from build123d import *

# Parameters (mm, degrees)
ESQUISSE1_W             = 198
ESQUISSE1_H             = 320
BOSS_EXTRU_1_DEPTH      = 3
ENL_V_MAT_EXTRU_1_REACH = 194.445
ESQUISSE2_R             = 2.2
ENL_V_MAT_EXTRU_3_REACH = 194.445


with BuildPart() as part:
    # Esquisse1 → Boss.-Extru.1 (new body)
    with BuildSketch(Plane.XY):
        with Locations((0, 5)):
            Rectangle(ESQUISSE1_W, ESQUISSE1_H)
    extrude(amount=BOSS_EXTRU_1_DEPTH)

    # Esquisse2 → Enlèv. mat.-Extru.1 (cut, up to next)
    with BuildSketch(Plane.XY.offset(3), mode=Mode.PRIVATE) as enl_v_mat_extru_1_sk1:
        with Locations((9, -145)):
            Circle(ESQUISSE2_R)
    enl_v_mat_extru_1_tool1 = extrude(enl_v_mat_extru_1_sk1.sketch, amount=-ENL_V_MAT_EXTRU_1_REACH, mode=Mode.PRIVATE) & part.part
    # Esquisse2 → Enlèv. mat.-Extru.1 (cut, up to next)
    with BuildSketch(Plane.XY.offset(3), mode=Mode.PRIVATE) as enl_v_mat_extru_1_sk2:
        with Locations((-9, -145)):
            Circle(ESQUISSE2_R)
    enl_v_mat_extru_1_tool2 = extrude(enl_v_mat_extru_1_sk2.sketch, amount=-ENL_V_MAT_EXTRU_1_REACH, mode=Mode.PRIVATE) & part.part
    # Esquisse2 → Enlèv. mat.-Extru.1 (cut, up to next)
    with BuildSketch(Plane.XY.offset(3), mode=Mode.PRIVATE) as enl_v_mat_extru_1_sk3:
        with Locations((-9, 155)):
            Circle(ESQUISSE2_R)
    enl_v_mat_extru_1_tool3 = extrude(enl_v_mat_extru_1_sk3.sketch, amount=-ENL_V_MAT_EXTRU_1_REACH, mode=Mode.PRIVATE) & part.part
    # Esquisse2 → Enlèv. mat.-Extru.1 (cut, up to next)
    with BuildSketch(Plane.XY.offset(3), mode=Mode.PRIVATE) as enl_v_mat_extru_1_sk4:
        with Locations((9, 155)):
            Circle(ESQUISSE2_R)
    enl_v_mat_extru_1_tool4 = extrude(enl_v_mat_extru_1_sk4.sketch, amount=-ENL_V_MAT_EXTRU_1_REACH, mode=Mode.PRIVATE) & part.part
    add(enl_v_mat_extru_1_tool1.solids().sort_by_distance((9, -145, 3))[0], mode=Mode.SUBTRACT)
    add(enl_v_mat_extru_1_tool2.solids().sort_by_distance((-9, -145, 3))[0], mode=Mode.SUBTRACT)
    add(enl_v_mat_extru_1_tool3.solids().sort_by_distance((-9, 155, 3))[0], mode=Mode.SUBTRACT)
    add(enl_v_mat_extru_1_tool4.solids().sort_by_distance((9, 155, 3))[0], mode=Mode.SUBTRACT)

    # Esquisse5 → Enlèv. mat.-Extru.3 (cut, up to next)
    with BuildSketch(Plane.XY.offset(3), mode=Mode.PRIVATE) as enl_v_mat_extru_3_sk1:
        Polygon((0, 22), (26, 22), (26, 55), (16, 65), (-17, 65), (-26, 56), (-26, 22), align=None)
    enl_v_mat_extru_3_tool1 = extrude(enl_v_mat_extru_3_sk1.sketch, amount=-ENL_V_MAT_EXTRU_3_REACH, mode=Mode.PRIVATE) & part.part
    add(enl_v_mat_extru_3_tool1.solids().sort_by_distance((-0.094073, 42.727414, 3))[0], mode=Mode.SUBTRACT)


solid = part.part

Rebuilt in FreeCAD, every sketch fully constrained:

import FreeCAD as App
import Part
import Sketcher

V = App.Vector
Q = App.Units.Quantity


def add_polygon(sketch, points):
    """Adds a closed chain of lines whose ends are joined by coincident constraints."""
    first, n = sketch.GeometryCount, len(points)
    for a, b in zip(points, points[1:] + points[:1]):
        sketch.addGeometry(Part.LineSegment(App.Vector(*a, 0), App.Vector(*b, 0)), False)
    for i in range(n):
        sketch.addConstraint(Sketcher.Constraint("Coincident", first + i, 2, first + (i + 1) % n, 1))

doc = App.newDocument("Part")
body = doc.addObject("PartDesign::Body", "Body")

sketch1 = body.newObject("Sketcher::SketchObject", "Sketch")
sketch1.AttachmentSupport = (doc.getObject("XY_Plane"), [""])
sketch1.MapMode = "FlatFace"
add_polygon(sketch1, [(-99, 165), (-99, -155), (99, -155), (99, 165)])
sketch1.addConstraint(Sketcher.Constraint("Vertical", 0))
sketch1.addConstraint(Sketcher.Constraint("Horizontal", 1))
sketch1.addConstraint(Sketcher.Constraint("Vertical", 2))
sketch1.addConstraint(Sketcher.Constraint("Horizontal", 3))
sketch1.addConstraint(Sketcher.Constraint("DistanceX", 1, 1, 1, 2, 198.0))
sketch1.addConstraint(Sketcher.Constraint("DistanceY", 0, 2, 0, 1, 320.0))
sketch1.addConstraint(Sketcher.Constraint("DistanceX", 0, 2, -1, 1, 99.0))
sketch1.addConstraint(Sketcher.Constraint("DistanceY", 0, 2, -1, 1, 155.0))
pad1 = body.newObject("PartDesign::Pad", "Pad")
pad1.Profile = sketch1
pad1.Length = 3

sketch2 = body.newObject("Sketcher::SketchObject", "Sketch001")
sketch2.AttachmentSupport = (doc.getObject("XY_Plane"), [""])
sketch2.MapMode = "FlatFace"
sketch2.AttachmentOffset = App.Placement(V(0, 0, 3), App.Rotation())
sketch2.addGeometry(Part.Circle(V(9, -145, 0), V(0, 0, 1), 2.2), False)
sketch2.addConstraint(Sketcher.Constraint("Diameter", 0, 4.4))
sketch2.addConstraint(Sketcher.Constraint("DistanceX", -1, 1, 0, 3, 9.0))
sketch2.addConstraint(Sketcher.Constraint("DistanceY", 0, 3, -1, 1, 145.0))
pocket1 = body.newObject("PartDesign::Pocket", "Pocket")
pocket1.Profile = sketch2
pocket1.Type = "UpToFirst"

sketch3 = body.newObject("Sketcher::SketchObject", "Sketch002")
sketch3.AttachmentSupport = (doc.getObject("XY_Plane"), [""])
sketch3.MapMode = "FlatFace"
sketch3.AttachmentOffset = App.Placement(V(0, 0, 3), App.Rotation())
sketch3.addGeometry(Part.Circle(V(-9, -145, 0), V(0, 0, 1), 2.2), False)
sketch3.addConstraint(Sketcher.Constraint("Diameter", 0, 4.4))
sketch3.addConstraint(Sketcher.Constraint("DistanceX", 0, 3, -1, 1, 9.0))
sketch3.addConstraint(Sketcher.Constraint("DistanceY", 0, 3, -1, 1, 145.0))
pocket2 = body.newObject("PartDesign::Pocket", "Pocket001")
pocket2.Profile = sketch3
pocket2.Type = "UpToFirst"

sketch4 = body.newObject("Sketcher::SketchObject", "Sketch003")
sketch4.AttachmentSupport = (doc.getObject("XY_Plane"), [""])
sketch4.MapMode = "FlatFace"
sketch4.AttachmentOffset = App.Placement(V(0, 0, 3), App.Rotation())
sketch4.addGeometry(Part.Circle(V(-9, 155, 0), V(0, 0, 1), 2.2), False)
sketch4.addConstraint(Sketcher.Constraint("Diameter", 0, 4.4))
sketch4.addConstraint(Sketcher.Constraint("DistanceX", 0, 3, -1, 1, 9.0))
sketch4.addConstraint(Sketcher.Constraint("DistanceY", -1, 1, 0, 3, 155.0))
pocket3 = body.newObject("PartDesign::Pocket", "Pocket002")
pocket3.Profile = sketch4
pocket3.Type = "UpToFirst"

sketch5 = body.newObject("Sketcher::SketchObject", "Sketch004")
sketch5.AttachmentSupport = (doc.getObject("XY_Plane"), [""])
sketch5.MapMode = "FlatFace"
sketch5.AttachmentOffset = App.Placement(V(0, 0, 3), App.Rotation())
sketch5.addGeometry(Part.Circle(V(9, 155, 0), V(0, 0, 1), 2.2), False)
sketch5.addConstraint(Sketcher.Constraint("Diameter", 0, 4.4))
sketch5.addConstraint(Sketcher.Constraint("DistanceX", -1, 1, 0, 3, 9.0))
sketch5.addConstraint(Sketcher.Constraint("DistanceY", -1, 1, 0, 3, 155.0))
pocket4 = body.newObject("PartDesign::Pocket", "Pocket003")
pocket4.Profile = sketch5
pocket4.Type = "UpToFirst"

sketch6 = body.newObject("Sketcher::SketchObject", "Sketch005")
sketch6.AttachmentSupport = (doc.getObject("XY_Plane"), [""])
sketch6.MapMode = "FlatFace"
sketch6.AttachmentOffset = App.Placement(V(0, 0, 3), App.Rotation())
add_polygon(sketch6, [(26, 22), (26, 55), (16, 65), (-17, 65), (-26, 56), (-26, 22)])
sketch6.addConstraint(Sketcher.Constraint("Vertical", 0))
sketch6.addConstraint(Sketcher.Constraint("Horizontal", 2))
sketch6.addConstraint(Sketcher.Constraint("Vertical", 4))
sketch6.addConstraint(Sketcher.Constraint("Horizontal", 5))
sketch6.addConstraint(Sketcher.Constraint("Perpendicular", 1, 3))
sketch6.addConstraint(Sketcher.Constraint("Equal", 2, 0))
sketch6.addConstraint(Sketcher.Constraint("DistanceX", 2, 2, 2, 1, 33.0))
sketch6.addConstraint(Sketcher.Constraint("DistanceX", 5, 1, 5, 2, 52.0))
sketch6.addConstraint(Sketcher.Constraint("DistanceY", 4, 2, 4, 1, 34.0))
sketch6.addConstraint(Sketcher.Constraint("Angle", 1, Q("135 deg")))
sketch6.addConstraint(Sketcher.Constraint("DistanceX", -1, 1, 0, 2, 26.0))
sketch6.addConstraint(Sketcher.Constraint("DistanceY", -1, 1, 0, 2, 55.0))
pocket5 = body.newObject("PartDesign::Pocket", "Pocket004")
pocket5.Profile = sketch6
pocket5.Type = "UpToFirst"

doc.recompute()
